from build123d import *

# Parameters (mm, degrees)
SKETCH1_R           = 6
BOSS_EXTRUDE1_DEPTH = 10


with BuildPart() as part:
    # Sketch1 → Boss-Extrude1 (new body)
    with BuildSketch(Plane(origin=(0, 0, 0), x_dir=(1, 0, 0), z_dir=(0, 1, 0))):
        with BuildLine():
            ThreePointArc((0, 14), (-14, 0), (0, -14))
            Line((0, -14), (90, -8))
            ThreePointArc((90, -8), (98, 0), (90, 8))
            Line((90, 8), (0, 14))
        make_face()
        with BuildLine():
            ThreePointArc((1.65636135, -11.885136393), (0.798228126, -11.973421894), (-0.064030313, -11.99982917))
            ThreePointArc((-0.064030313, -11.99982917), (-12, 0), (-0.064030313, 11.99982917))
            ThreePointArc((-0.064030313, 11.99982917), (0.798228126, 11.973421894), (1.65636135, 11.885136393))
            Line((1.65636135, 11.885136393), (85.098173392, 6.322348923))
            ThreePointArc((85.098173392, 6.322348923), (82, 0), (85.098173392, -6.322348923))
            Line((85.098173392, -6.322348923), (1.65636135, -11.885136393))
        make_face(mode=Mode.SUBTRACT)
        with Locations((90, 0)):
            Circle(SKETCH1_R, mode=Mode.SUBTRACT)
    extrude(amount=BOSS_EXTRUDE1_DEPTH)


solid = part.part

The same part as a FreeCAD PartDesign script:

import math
import FreeCAD as App
import Part
import Sketcher
Q = App.Units.Quantity

doc = App.newDocument("Part")
body = doc.addObject("PartDesign::Body", "Body")

# Sketch on XZ plane
sketch1 = body.newObject("Sketcher::SketchObject", "Sketch")
sketch1.AttachmentSupport = (doc.getObject("XZ_Plane"), [""])
sketch1.MapMode = "FlatFace"
sketch1.addGeometry([
    Part.ArcOfCircle(Part.Circle(App.Vector(0, 0, 0), App.Vector(0, 0, 1), 14), math.radians(90), math.radians(270)),  # 0
    Part.LineSegment(App.Vector(0, 14, 0), App.Vector(90, 8, 0)),  # 1
    Part.ArcOfCircle(Part.Circle(App.Vector(90, 0, 0), App.Vector(0, 0, 1), 8), math.radians(-90), math.radians(90)),  # 2
    Part.LineSegment(App.Vector(90, -8, 0), App.Vector(0, -14, 0)),  # 3
    Part.Circle(App.Vector(90, 0, 0), App.Vector(0, 0, 1), 6),  # 4
    Part.LineSegment(App.Vector(85.1, 6.3, 0), App.Vector(1.7, 11.9, 0)),  # 5
    Part.ArcOfCircle(Part.Circle(App.Vector(0, 0, 0), App.Vector(0, 0, 1), 12), math.radians(82.07), math.radians(90.31)),  # 6
    Part.ArcOfCircle(Part.Circle(App.Vector(0, 0, 0), App.Vector(0, 0, 1), 12), math.radians(90), math.radians(270)),  # 7
    Part.ArcOfCircle(Part.Circle(App.Vector(0, 0, 0), App.Vector(0, 0, 1), 12), math.radians(-90.31), math.radians(-82.07)),  # 8
    Part.LineSegment(App.Vector(1.7, -11.9, 0), App.Vector(85.1, -6.3, 0)),  # 9
    Part.ArcOfCircle(Part.Circle(App.Vector(90, 0, 0), App.Vector(0, 0, 1), 8), math.radians(128), math.radians(232)),  # 10
], False)
sketch1.addConstraint([
    Sketcher.Constraint("Coincident", 0, 1, 1, 1),
    Sketcher.Constraint("Coincident", 1, 2, 2, 2),
    Sketcher.Constraint("Coincident", 2, 1, 3, 1),
    Sketcher.Constraint("Coincident", 3, 2, 0, 2),
    Sketcher.Constraint("Coincident", 5, 2, 6, 1),
    Sketcher.Constraint("Tangent", 6, 2, 7, 1),
    Sketcher.Constraint("Tangent", 7, 2, 8, 1),
    Sketcher.Constraint("Coincident", 8, 2, 9, 1),
    Sketcher.Constraint("Coincident", 9, 2, 10, 2),
    Sketcher.Constraint("Coincident", 10, 1, 5, 1),
    Sketcher.Constraint("Coincident", 0, 3, -1, 1),
    Sketcher.Constraint("Coincident", 6, 3, -1, 1),
    Sketcher.Constraint("Coincident", 8, 3, -1, 1),
    Sketcher.Constraint("Coincident", 4, 3, 2, 3),
    Sketcher.Constraint("Coincident", 10, 3, 2, 3),
    Sketcher.Constraint("Equal", 2, 10),
    Sketcher.Constraint("Symmetric", 1, 2, 2, 1, -1),
    Sketcher.Constraint("PointOnObject", 0, 1, -2),
    Sketcher.Constraint("PointOnObject", 3, 2, -2),
    Sketcher.Constraint("Parallel", 1, 5),
    Sketcher.Constraint("Parallel", 3, 9),
    Sketcher.Constraint("Vertical", 10, 3, 1, 2),
    Sketcher.Constraint("Vertical", 6, 2, 7, 2),
    Sketcher.Constraint("Vertical", 5, 2, 8, 2),
    Sketcher.Constraint("Diameter", 4, Q("12 mm")),
    Sketcher.Constraint("Radius", 0, Q("14 mm")),
    Sketcher.Constraint("Radius", 2, Q("8 mm")),
    Sketcher.Constraint("Radius", 6, Q("12 mm")),
    Sketcher.Constraint("DistanceX", -1, 1, 2, 3, Q("90 mm")),
    Sketcher.Constraint("DistanceX", -1, 1, 5, 2, Q("1.656361 mm")),
    Sketcher.Constraint("DistanceX", 6, 2, -1, 1, Q("0.06403 mm")),
])
pad1 = body.newObject("PartDesign::Pad", "Pad")
pad1.Profile = sketch1
pad1.Length = 10
pad1.Reversed = True

doc.recompute()
